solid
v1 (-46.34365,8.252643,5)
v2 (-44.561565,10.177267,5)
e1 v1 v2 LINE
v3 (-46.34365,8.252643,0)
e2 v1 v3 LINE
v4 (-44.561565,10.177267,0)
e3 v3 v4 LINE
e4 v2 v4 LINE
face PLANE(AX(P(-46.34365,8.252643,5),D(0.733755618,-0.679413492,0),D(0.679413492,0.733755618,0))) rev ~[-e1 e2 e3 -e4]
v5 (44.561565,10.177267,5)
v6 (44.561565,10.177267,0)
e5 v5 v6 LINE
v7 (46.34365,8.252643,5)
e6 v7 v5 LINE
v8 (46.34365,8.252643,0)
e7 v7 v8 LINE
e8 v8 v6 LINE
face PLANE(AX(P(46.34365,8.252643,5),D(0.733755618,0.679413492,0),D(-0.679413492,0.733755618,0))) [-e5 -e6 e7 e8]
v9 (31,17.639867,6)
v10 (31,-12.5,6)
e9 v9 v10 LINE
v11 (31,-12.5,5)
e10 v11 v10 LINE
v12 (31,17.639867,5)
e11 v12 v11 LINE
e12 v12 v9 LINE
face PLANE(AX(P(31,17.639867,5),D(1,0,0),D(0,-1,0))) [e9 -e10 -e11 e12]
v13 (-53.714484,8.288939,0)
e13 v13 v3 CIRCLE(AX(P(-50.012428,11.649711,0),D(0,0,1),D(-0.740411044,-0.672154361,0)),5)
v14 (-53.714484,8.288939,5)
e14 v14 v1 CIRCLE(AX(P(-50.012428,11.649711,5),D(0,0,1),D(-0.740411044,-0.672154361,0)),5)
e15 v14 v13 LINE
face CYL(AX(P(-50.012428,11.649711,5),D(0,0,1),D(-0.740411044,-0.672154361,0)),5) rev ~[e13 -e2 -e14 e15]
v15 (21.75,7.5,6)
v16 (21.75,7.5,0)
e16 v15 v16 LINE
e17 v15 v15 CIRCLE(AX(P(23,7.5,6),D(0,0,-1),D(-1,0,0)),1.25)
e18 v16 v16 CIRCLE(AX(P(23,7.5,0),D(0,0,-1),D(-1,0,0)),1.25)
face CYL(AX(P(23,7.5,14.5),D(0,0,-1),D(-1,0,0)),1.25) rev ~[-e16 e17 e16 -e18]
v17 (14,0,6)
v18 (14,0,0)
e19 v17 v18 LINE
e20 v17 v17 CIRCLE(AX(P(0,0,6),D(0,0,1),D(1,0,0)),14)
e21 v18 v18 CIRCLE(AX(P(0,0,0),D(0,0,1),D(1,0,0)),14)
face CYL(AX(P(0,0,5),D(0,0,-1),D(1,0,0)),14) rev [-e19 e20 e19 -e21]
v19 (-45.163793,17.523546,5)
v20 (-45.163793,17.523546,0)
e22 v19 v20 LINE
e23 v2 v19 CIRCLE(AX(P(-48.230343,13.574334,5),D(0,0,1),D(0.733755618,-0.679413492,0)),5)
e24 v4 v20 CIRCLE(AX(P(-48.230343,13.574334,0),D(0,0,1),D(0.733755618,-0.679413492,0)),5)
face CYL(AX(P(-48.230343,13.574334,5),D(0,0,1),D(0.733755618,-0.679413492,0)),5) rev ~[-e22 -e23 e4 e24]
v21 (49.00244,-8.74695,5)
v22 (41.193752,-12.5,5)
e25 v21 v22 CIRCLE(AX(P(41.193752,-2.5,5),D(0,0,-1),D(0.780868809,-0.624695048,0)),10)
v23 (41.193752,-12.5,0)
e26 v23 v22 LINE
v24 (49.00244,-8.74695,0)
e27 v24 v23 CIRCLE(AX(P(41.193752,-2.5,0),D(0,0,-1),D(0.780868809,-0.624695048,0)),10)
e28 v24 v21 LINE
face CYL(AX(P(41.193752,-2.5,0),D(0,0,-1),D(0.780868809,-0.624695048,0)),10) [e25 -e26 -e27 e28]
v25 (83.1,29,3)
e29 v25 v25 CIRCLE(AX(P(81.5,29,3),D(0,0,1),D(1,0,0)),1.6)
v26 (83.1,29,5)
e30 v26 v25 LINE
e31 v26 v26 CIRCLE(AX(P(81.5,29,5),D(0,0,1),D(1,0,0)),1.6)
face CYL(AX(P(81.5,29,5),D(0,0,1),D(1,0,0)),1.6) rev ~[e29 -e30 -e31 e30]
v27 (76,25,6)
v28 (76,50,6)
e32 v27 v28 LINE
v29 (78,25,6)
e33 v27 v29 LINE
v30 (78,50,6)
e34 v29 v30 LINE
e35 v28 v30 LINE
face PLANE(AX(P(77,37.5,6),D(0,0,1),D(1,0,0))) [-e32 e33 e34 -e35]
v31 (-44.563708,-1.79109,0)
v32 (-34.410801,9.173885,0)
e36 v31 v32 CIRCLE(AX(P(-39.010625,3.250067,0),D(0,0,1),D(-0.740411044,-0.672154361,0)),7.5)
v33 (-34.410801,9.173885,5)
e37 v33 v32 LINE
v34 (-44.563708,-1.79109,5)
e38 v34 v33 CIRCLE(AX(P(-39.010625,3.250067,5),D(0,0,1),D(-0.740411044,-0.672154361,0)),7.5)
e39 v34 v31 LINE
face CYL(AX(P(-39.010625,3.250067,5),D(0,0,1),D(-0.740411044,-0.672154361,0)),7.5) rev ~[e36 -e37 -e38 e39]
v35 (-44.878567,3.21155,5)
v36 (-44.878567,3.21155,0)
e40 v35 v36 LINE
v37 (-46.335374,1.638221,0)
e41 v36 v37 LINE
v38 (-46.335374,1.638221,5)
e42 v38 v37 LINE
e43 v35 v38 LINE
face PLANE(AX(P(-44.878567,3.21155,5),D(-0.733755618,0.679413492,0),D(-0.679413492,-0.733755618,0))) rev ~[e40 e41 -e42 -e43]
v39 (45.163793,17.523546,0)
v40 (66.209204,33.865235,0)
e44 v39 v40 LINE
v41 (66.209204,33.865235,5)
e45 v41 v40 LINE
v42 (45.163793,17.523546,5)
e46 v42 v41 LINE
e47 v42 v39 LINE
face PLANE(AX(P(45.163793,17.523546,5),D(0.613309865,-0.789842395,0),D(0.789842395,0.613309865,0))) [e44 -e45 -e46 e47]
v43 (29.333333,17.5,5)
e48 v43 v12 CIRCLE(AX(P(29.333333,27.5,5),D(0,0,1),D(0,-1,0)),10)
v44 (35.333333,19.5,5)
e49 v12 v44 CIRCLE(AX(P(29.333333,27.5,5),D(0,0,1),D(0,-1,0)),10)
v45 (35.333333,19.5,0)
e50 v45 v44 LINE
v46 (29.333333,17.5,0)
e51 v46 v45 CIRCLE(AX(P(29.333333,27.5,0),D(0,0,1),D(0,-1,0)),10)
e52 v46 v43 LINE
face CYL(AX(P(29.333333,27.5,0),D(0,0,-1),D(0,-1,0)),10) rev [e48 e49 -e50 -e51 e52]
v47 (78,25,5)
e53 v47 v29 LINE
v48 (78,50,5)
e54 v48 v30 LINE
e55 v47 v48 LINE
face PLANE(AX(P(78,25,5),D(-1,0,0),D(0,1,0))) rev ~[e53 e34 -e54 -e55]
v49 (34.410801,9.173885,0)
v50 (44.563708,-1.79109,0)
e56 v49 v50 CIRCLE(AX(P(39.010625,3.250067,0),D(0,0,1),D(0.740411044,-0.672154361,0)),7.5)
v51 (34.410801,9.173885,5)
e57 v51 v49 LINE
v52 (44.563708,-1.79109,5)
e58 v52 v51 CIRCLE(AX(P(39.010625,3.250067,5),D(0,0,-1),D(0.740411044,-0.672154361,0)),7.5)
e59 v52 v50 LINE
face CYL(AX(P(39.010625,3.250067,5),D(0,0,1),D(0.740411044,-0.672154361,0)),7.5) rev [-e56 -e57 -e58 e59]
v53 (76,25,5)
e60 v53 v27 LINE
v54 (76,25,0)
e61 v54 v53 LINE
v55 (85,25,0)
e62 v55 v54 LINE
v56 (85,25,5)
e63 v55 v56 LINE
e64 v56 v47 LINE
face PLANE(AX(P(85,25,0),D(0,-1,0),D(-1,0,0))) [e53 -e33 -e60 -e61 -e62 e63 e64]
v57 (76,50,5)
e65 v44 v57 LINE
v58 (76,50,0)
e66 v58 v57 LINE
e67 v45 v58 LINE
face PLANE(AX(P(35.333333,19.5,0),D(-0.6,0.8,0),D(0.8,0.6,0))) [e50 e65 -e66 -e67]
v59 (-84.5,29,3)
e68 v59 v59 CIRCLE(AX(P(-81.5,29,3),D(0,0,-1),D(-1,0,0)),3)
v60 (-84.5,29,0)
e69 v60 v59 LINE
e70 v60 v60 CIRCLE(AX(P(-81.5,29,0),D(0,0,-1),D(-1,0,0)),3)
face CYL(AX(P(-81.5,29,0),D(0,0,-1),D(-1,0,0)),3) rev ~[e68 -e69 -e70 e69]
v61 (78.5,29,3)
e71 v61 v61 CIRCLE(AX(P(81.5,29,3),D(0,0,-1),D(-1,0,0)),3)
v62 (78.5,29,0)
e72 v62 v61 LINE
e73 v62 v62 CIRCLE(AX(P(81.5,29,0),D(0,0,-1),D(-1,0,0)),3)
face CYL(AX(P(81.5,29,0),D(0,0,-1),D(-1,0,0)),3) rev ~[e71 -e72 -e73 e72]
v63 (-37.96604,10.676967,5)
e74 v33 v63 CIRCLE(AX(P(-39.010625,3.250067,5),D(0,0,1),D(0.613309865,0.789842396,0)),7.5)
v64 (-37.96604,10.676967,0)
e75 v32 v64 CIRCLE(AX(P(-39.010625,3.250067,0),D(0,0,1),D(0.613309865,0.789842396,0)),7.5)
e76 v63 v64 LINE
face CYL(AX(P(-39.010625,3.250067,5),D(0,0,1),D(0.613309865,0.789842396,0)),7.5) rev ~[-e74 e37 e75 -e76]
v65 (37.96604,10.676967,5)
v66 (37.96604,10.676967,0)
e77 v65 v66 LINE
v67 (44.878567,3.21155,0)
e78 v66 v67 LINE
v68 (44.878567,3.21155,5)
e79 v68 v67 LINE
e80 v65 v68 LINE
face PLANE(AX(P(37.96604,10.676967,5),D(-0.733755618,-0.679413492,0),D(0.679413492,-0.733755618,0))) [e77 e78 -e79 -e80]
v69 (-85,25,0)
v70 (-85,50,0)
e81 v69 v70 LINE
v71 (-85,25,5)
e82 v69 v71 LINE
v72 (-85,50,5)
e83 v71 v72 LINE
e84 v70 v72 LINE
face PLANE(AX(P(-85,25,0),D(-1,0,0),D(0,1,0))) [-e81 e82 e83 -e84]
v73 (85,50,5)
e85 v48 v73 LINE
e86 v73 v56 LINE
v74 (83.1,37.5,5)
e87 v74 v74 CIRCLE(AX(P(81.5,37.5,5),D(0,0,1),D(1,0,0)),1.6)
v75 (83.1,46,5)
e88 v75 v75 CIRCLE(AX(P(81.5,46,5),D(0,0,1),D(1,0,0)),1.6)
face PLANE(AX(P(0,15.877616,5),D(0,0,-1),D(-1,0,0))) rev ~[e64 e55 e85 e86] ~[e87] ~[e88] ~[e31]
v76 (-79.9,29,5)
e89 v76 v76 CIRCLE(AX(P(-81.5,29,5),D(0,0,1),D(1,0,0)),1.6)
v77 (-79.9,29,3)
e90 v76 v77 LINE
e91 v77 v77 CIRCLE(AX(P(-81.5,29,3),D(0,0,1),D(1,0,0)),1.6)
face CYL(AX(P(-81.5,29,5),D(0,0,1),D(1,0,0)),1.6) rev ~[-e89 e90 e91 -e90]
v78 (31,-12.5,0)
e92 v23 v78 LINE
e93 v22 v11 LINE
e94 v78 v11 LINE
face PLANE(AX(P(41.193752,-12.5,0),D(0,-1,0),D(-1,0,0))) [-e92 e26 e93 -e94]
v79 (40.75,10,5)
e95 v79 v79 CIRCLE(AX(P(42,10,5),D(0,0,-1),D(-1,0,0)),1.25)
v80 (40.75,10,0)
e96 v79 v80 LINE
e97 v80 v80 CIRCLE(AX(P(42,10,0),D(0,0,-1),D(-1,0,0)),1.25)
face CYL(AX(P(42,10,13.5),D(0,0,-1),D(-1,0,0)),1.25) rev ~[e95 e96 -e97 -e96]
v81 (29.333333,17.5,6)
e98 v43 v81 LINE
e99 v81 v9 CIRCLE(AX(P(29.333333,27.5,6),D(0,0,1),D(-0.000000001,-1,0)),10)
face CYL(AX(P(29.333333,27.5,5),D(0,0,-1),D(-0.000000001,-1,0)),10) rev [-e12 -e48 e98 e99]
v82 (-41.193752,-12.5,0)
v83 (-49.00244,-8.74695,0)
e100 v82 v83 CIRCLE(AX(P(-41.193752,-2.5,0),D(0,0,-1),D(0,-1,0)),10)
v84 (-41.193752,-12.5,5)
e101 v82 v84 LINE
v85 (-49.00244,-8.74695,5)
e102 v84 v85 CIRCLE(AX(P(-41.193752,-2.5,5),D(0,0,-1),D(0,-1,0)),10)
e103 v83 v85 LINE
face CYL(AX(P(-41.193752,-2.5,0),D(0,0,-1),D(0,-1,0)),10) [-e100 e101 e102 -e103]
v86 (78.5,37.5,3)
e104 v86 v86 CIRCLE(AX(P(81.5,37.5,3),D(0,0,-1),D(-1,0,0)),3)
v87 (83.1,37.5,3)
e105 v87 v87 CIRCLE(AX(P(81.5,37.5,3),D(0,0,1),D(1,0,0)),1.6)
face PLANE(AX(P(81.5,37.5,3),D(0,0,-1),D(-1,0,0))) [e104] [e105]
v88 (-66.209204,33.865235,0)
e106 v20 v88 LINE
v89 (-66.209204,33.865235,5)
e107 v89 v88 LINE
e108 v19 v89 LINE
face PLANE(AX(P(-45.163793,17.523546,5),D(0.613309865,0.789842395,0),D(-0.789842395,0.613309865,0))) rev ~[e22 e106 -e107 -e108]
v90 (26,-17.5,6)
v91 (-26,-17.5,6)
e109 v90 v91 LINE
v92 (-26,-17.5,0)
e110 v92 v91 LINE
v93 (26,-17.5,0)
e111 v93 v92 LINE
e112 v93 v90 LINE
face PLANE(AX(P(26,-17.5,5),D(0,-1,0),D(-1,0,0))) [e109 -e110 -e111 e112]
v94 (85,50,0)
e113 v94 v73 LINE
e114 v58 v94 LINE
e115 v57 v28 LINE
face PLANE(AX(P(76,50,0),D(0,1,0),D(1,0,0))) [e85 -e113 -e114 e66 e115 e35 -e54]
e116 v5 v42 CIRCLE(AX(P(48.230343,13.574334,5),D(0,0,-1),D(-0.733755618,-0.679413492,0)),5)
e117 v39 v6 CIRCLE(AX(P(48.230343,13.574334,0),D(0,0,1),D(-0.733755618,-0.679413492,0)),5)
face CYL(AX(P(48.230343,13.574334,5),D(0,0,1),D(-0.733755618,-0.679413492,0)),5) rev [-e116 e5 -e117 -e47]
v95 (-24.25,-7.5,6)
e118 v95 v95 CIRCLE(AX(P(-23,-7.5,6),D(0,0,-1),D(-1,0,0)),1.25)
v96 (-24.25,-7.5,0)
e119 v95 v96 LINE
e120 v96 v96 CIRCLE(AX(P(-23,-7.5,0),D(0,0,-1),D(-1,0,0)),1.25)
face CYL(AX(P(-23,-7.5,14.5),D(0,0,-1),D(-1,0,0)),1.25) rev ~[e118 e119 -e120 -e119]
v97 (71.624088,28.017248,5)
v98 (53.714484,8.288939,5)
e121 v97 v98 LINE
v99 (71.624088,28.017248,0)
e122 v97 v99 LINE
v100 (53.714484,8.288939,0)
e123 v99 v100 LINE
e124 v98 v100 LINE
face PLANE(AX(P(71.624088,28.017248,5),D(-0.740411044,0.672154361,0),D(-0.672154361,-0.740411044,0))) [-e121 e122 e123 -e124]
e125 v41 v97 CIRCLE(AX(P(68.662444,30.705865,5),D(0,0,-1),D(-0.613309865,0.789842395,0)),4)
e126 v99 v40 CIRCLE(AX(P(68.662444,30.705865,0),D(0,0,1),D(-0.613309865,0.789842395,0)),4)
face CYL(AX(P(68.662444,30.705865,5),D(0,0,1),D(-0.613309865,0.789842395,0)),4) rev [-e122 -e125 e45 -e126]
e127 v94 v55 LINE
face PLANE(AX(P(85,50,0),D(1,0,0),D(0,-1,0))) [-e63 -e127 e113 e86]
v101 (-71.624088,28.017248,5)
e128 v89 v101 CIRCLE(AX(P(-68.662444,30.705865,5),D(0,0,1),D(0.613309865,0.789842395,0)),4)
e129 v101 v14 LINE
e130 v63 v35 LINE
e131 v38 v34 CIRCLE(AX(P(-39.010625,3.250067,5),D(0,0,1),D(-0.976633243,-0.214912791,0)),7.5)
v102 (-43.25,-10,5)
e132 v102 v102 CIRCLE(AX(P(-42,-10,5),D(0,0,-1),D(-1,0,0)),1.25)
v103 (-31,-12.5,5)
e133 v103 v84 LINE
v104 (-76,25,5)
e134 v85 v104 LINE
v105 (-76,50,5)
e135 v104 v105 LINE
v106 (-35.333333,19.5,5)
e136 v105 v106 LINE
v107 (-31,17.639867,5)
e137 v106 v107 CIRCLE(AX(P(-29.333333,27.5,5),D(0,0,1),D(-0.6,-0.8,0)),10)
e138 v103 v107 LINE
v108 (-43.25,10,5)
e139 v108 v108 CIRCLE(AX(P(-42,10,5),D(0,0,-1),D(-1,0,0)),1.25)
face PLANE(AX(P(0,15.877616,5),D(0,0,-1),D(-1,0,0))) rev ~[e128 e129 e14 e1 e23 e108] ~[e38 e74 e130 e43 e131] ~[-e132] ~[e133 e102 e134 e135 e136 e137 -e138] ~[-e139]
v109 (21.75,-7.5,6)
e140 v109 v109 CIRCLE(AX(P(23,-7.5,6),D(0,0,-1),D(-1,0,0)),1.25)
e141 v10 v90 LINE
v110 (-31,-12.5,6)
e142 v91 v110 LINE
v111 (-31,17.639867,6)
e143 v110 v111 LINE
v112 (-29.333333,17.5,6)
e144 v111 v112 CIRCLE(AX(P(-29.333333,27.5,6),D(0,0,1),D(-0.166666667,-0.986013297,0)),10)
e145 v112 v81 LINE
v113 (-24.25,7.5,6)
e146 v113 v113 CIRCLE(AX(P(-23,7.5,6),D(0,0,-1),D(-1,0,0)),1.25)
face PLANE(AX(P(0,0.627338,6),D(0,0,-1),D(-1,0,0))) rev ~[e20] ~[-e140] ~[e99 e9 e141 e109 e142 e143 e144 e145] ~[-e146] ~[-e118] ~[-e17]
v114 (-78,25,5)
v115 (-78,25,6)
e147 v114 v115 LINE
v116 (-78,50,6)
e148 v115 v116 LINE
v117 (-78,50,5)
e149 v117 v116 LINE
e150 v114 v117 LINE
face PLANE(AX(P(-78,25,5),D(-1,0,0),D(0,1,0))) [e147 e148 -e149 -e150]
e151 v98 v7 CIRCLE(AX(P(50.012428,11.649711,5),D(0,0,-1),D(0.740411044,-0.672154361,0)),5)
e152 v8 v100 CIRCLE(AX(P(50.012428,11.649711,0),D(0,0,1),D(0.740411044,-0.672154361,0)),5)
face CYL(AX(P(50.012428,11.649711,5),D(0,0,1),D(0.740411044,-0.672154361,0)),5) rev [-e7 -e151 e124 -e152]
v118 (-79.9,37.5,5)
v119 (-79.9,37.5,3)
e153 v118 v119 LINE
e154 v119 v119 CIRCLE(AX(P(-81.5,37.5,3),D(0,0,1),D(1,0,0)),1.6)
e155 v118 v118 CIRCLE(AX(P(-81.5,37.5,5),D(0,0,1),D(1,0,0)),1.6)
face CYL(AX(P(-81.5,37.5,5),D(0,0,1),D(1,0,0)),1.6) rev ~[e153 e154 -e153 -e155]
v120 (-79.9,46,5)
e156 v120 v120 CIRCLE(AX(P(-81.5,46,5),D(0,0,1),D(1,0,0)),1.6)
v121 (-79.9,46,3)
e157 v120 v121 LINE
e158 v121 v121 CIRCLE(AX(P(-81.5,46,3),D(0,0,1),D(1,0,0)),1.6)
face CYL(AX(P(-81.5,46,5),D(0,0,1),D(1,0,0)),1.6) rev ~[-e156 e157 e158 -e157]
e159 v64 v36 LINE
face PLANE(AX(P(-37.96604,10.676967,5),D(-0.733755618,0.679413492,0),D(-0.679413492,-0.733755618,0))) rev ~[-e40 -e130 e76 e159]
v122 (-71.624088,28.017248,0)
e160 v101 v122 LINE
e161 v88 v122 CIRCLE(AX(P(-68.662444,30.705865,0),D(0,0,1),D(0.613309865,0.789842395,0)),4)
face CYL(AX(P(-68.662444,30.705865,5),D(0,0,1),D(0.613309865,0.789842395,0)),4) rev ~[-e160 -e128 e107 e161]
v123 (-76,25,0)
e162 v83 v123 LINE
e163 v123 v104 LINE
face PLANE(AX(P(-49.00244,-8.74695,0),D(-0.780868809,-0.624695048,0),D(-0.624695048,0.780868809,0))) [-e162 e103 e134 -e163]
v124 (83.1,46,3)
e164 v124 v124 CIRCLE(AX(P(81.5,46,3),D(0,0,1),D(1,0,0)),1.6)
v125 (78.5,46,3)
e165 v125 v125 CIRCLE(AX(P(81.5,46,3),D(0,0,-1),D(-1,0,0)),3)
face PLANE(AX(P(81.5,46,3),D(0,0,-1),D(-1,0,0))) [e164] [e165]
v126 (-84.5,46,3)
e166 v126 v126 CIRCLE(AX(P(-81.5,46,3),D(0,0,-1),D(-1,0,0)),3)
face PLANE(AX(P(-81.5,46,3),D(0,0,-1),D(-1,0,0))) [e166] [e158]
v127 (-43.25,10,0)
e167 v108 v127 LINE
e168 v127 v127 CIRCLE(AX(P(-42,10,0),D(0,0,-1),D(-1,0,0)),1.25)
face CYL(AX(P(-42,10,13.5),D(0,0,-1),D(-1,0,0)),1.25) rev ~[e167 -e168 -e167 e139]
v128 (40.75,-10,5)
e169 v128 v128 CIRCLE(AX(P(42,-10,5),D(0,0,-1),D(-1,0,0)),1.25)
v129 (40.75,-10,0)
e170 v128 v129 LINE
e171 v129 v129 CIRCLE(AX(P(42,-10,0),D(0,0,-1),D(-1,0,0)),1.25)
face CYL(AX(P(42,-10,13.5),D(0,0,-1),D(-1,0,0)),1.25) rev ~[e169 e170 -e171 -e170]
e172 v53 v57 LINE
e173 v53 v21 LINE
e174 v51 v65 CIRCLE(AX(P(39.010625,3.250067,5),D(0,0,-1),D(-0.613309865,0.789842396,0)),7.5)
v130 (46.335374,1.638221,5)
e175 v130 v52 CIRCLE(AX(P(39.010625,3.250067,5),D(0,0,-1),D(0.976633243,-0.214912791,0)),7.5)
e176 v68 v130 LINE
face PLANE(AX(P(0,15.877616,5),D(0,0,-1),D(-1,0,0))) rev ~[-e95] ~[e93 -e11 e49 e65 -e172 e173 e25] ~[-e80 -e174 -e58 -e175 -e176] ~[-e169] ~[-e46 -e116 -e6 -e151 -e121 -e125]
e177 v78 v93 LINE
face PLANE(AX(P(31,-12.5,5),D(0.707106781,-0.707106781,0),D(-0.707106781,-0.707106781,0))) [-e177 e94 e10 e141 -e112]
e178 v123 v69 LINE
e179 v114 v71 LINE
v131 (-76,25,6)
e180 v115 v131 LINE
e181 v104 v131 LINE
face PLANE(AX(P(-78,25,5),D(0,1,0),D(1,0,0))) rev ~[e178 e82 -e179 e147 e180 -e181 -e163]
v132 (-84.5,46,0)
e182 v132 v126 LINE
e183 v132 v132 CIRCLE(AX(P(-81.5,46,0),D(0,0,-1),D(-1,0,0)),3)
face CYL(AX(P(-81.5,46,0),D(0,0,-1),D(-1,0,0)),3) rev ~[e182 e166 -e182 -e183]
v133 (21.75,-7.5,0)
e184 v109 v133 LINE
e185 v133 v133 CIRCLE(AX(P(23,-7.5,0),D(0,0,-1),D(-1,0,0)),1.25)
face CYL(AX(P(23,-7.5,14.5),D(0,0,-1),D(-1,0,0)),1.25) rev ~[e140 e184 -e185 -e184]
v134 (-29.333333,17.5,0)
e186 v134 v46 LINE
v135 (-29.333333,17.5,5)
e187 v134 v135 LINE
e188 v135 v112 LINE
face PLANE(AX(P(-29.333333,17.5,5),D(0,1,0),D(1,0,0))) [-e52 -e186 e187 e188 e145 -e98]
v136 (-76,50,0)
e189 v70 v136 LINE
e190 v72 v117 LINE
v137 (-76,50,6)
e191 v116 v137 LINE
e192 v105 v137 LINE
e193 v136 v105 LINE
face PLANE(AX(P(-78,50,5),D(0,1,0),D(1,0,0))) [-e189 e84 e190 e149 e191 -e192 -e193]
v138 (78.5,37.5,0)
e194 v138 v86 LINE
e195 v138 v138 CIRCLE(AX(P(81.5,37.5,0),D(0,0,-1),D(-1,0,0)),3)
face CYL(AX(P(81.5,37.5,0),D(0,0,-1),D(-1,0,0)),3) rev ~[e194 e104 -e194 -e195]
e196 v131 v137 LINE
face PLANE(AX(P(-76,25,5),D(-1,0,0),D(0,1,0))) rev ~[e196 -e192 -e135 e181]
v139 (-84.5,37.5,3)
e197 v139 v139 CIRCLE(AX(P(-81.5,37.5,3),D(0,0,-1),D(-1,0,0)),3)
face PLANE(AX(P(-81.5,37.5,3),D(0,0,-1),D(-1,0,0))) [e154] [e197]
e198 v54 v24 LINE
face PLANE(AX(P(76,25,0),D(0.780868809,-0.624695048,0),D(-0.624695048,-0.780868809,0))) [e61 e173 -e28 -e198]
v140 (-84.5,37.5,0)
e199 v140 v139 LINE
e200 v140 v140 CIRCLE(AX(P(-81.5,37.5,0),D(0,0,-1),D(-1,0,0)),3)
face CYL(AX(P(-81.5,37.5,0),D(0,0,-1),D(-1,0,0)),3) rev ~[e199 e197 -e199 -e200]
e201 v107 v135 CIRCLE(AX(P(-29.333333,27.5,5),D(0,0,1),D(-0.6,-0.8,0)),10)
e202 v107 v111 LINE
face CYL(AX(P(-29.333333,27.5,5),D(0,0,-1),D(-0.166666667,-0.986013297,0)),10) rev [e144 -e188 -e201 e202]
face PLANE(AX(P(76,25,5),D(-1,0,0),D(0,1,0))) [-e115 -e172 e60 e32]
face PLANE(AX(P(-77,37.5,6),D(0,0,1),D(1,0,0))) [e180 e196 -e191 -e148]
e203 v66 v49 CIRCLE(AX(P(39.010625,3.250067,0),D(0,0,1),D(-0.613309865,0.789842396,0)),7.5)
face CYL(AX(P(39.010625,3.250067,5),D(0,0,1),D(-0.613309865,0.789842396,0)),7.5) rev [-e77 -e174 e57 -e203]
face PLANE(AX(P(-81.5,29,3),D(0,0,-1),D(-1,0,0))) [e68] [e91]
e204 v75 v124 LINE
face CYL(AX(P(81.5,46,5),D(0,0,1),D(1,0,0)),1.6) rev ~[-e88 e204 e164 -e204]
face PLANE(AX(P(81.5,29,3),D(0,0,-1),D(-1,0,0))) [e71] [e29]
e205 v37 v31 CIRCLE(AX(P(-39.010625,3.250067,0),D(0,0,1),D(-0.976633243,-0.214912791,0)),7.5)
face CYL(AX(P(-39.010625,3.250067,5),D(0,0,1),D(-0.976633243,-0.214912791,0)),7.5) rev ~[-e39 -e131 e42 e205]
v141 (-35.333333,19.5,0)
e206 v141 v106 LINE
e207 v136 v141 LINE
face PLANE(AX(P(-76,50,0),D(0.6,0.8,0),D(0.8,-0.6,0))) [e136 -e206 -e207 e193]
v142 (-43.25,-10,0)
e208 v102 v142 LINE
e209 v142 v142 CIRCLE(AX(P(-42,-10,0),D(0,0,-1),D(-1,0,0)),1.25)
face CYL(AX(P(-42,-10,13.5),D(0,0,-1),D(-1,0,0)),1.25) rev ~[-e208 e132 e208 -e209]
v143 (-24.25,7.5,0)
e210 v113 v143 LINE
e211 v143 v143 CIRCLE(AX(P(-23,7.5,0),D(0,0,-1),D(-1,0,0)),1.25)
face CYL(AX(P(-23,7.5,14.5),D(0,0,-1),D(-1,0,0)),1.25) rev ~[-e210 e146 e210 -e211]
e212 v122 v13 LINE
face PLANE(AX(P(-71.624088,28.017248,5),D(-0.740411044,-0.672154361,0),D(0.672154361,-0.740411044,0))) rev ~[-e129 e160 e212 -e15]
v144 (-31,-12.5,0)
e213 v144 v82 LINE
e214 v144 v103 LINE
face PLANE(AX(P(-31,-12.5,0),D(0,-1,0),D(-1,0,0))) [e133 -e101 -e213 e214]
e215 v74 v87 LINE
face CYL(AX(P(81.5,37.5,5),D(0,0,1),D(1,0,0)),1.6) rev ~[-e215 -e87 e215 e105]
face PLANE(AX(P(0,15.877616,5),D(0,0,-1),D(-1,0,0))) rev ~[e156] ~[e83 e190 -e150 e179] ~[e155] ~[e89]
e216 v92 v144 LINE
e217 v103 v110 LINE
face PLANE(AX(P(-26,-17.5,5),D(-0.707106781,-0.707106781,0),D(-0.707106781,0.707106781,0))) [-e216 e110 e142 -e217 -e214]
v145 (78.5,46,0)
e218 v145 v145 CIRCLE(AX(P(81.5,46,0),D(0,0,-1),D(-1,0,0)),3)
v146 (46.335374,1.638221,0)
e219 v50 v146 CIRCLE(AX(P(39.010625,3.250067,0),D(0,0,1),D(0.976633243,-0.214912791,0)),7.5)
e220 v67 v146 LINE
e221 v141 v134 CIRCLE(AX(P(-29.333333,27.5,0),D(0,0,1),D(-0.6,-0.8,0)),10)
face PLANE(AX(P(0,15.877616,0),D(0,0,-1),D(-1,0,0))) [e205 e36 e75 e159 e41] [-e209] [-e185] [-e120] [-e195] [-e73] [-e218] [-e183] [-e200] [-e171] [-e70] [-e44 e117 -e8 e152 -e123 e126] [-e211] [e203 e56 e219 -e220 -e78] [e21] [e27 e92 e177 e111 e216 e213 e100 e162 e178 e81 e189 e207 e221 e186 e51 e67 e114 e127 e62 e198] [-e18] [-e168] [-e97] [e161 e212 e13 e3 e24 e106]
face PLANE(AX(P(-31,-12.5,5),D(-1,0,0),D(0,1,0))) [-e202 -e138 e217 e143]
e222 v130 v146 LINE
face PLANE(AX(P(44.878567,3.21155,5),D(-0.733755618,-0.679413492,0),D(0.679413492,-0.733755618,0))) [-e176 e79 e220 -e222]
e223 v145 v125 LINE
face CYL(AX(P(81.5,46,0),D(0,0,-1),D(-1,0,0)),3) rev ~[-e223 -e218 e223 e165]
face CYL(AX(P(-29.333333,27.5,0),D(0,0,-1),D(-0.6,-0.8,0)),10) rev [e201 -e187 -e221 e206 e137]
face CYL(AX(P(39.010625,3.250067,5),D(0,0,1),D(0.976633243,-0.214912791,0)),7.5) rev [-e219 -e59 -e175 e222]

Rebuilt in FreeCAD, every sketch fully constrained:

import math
import FreeCAD as App
import Part
import Sketcher
from FreeCAD import Vector
Q = App.Units.Quantity


def add_polygon(sketch, points):
    """Adds a closed chain of lines whose ends are joined by coincident constraints."""
    first, n = sketch.GeometryCount, len(points)
    for a, b in zip(points, points[1:] + points[:1]):
        sketch.addGeometry(Part.LineSegment(App.Vector(*a, 0), App.Vector(*b, 0)), False)
    for i in range(n):
        sketch.addConstraint(Sketcher.Constraint("Coincident", first + i, 2, first + (i + 1) % n, 1))

doc = App.newDocument("Part")
body = doc.addObject("PartDesign::Body", "Body")

# Sketch on XY plane
sketch1 = body.newObject("Sketcher::SketchObject", "Sketch")
sketch1.AttachmentSupport = (doc.getObject("XY_Plane"), [""])
sketch1.MapMode = "FlatFace"
sketch1.addGeometry([
    Part.LineSegment(Vector(-85, 50, 0), Vector(-85, 25, 0)),  # 0
    Part.LineSegment(Vector(-85, 25, 0), Vector(-76, 25, 0)),  # 1
    Part.LineSegment(Vector(-76, 25, 0), Vector(-49, -9, 0)),  # 2
    Part.ArcOfCircle(Part.Circle(Vector(-41, -2, 0), Vector(0, 0, 1), 10), math.radians(-141), math.radians(-90)),  # 3
    Part.LineSegment(Vector(-41, -12, 0), Vector(-31, -12, 0)),  # 4
    Part.LineSegment(Vector(-31, -12, 0), Vector(-26, -18, 0)),  # 5
    Part.LineSegment(Vector(-26, -18, 0), Vector(26, -18, 0)),  # 6
    Part.LineSegment(Vector(26, -18, 0), Vector(31, -12, 0)),  # 7
    Part.LineSegment(Vector(31, -12, 0), Vector(41, -12, 0)),  # 8
    Part.ArcOfCircle(Part.Circle(Vector(41, -2, 0), Vector(0, 0, 1), 10), math.radians(-90), math.radians(-39)),  # 9
    Part.LineSegment(Vector(49, -9, 0), Vector(76, 25, 0)),  # 10
    Part.LineSegment(Vector(76, 25, 0), Vector(85, 25, 0)),  # 11
    Part.LineSegment(Vector(85, 25, 0), Vector(85, 50, 0)),  # 12
    Part.LineSegment(Vector(85, 50, 0), Vector(76, 50, 0)),  # 13
    Part.LineSegment(Vector(76, 50, 0), Vector(35, 20, 0)),  # 14
    Part.ArcOfCircle(Part.Circle(Vector(29, 27, 0), Vector(0, 0, 1), 10), math.radians(-90), math.radians(-53)),  # 15
    Part.LineSegment(Vector(29, 18, 0), Vector(-29, 18, 0)),  # 16
    Part.ArcOfCircle(Part.Circle(Vector(-29, 27, 0), Vector(0, 0, 1), 10), math.radians(-127), math.radians(-90)),  # 17
    Part.LineSegment(Vector(-35, 20, 0), Vector(-76, 50, 0)),  # 18
    Part.LineSegment(Vector(-76, 50, 0), Vector(-85, 50, 0)),  # 19
    Part.Circle(Vector(0, 0, 0), Vector(0, 0, 1), 14),  # 20
], False)
sketch1.addConstraint([
    Sketcher.Constraint("Coincident", 0, 2, 1, 1),
    Sketcher.Constraint("Coincident", 1, 2, 2, 1),
    Sketcher.Constraint("Tangent", 2, 2, 3, 1),
    Sketcher.Constraint("Tangent", 3, 2, 4, 1),
    Sketcher.Constraint("Coincident", 4, 2, 5, 1),
    Sketcher.Constraint("Coincident", 5, 2, 6, 1),
    Sketcher.Constraint("Coincident", 6, 2, 7, 1),
    Sketcher.Constraint("Coincident", 7, 2, 8, 1),
    Sketcher.Constraint("Tangent", 8, 2, 9, 1),
    Sketcher.Constraint("Tangent", 9, 2, 10, 1),
    Sketcher.Constraint("Coincident", 10, 2, 11, 1),
    Sketcher.Constraint("Coincident", 11, 2, 12, 1),
    Sketcher.Constraint("Coincident", 12, 2, 13, 1),
    Sketcher.Constraint("Coincident", 13, 2, 14, 1),
    Sketcher.Constraint("Tangent", 14, 2, 15, 2),
    Sketcher.Constraint("Tangent", 15, 1, 16, 1),
    Sketcher.Constraint("Tangent", 16, 2, 17, 2),
    Sketcher.Constraint("Tangent", 17, 1, 18, 1),
    Sketcher.Constraint("Coincident", 18, 2, 19, 1),
    Sketcher.Constraint("Coincident", 19, 2, 0, 1),
    Sketcher.Constraint("Vertical", 0),
    Sketcher.Constraint("Horizontal", 1),
    Sketcher.Constraint("Horizontal", 4),
    Sketcher.Constraint("Horizontal", 6),
    Sketcher.Constraint("Horizontal", 8),
    Sketcher.Constraint("Horizontal", 11),
    Sketcher.Constraint("Vertical", 12),
    Sketcher.Constraint("Horizontal", 13),
    Sketcher.Constraint("Horizontal", 16),
    Sketcher.Constraint("Horizontal", 19),
    Sketcher.Constraint("Coincident", 20, 3, -1, 1),
    Sketcher.Constraint("Equal", 3, 9),
    Sketcher.Constraint("Equal", 9, 15),
    Sketcher.Constraint("Equal", 15, 17),
    Sketcher.Constraint("Symmetric", 3, 3, 9, 3, -2),
    Sketcher.Constraint("Symmetric", 1, 2, 10, 2, -2),
    Sketcher.Constraint("Symmetric", 14, 2, 17, 1, -2),
    Sketcher.Constraint("Symmetric", 12, 2, 19, 2, -2),
    Sketcher.Constraint("Perpendicular", 5, 7),
    Sketcher.Constraint("Vertical", 10, 2, 13, 2),
    Sketcher.Constraint("Equal", 4, 8),
    Sketcher.Constraint("Equal", 5, 7),
    Sketcher.Constraint("Diameter", 20, Q("28 mm")),
    Sketcher.Constraint("Radius", 3, Q("10 mm")),
    Sketcher.Constraint("DistanceX", 1, 1, 1, 2, Q("9 mm")),
    Sketcher.Constraint("DistanceX", 6, 1, 6, 2, Q("52 mm")),
    Sketcher.Constraint("DistanceY", 0, 2, 0, 1, Q("25 mm")),
    Sketcher.Constraint("DistanceX", 0, 2, -1, 1, Q("85 mm")),
    Sketcher.Constraint("DistanceY", -1, 1, 0, 2, Q("25 mm")),
    Sketcher.Constraint("DistanceX", 4, 2, -1, 1, Q("31 mm")),
    Sketcher.Constraint("DistanceY", 9, 3, 15, 3, Q("30 mm")),
    Sketcher.Constraint("DistanceX", 15, 3, 14, 2, Q("6 mm")),
    Sketcher.Constraint("DistanceY", 3, 3, -1, 1, Q("2.5 mm")),
    Sketcher.Constraint("DistanceX", 4, 1, 4, 2, Q("10.193752 mm")),
])
pad1 = body.newObject("PartDesign::Pad", "Pad")
pad1.Profile = sketch1
pad1.Length = 5

# Sketch on XY plane
sketch2 = body.newObject("Sketcher::SketchObject", "Sketch001")
sketch2.AttachmentSupport = (doc.getObject("XY_Plane"), [""])
sketch2.MapMode = "FlatFace"
sketch2.AttachmentOffset = App.Placement(Vector(0, 0, 5), App.Rotation())
add_polygon(sketch2, [(-78, 50), (-78, 25), (-76, 25), (-76, 50)])  # lines 0-3
add_polygon(sketch2, [(76, 50), (76, 25), (78, 25), (78, 50)])  # lines 4-7
sketch2.addConstraint([
    Sketcher.Constraint("Vertical", 0),
    Sketcher.Constraint("Horizontal", 1),
    Sketcher.Constraint("Vertical", 2),
    Sketcher.Constraint("Horizontal", 3),
    Sketcher.Constraint("Vertical", 4),
    Sketcher.Constraint("Horizontal", 5),
    Sketcher.Constraint("Vertical", 6),
    Sketcher.Constraint("Horizontal", 7),
    Sketcher.Constraint("Symmetric", 1, 2, 4, 2, -2),
    Sketcher.Constraint("Symmetric", 3, 2, 6, 2, -2),
    Sketcher.Constraint("DistanceX", 1, 1, 1, 2, Q("2 mm")),
    Sketcher.Constraint("DistanceY", 0, 2, 0, 1, Q("25 mm")),
    Sketcher.Constraint("DistanceX", 0, 2, -1, 1, Q("78 mm")),
    Sketcher.Constraint("DistanceY", -1, 1, 0, 2, Q("25 mm")),
])
pad2 = body.newObject("PartDesign::Pad", "Pad001")
pad2.Profile = sketch2
pad2.Length = 1

# Sketch on XY plane
sketch3 = body.newObject("Sketcher::SketchObject", "Sketch002")
sketch3.AttachmentSupport = (doc.getObject("XY_Plane"), [""])
sketch3.MapMode = "FlatFace"
sketch3.AttachmentOffset = App.Placement(Vector(0, 0, 5), App.Rotation())
sketch3.addGeometry([
    Part.LineSegment(Vector(-71.6, 28, 0), Vector(-53.7, 8.3, 0)),  # 0
    Part.ArcOfCircle(Part.Circle(Vector(-50, 11.6, 0), Vector(0, 0, 1), 5), math.radians(-138), math.radians(-43)),  # 1
    Part.LineSegment(Vector(-46.3, 8.3, 0), Vector(-44.6, 10.2, 0)),  # 2
    Part.ArcOfCircle(Part.Circle(Vector(-48.2, 13.6, 0), Vector(0, 0, 1), 5), math.radians(-43), math.radians(52)),  # 3
    Part.LineSegment(Vector(-45.2, 17.5, 0), Vector(-66.2, 33.9, 0)),  # 4
    Part.ArcOfCircle(Part.Circle(Vector(-68.7, 30.7, 0), Vector(0, 0, 1), 4), math.radians(52), math.radians(222)),  # 5
], False)
sketch3.addConstraint([
    Sketcher.Constraint("Tangent", 0, 2, 1, 1),
    Sketcher.Constraint("Tangent", 1, 2, 2, 1),
    Sketcher.Constraint("Tangent", 2, 2, 3, 1),
    Sketcher.Constraint("Tangent", 3, 2, 4, 1),
    Sketcher.Constraint("Tangent", 4, 2, 5, 1),
    Sketcher.Constraint("Tangent", 5, 2, 0, 1),
    Sketcher.Constraint("Equal", 1, 3),
    Sketcher.Constraint("Equal", 0, 4),
    Sketcher.Constraint("Radius", 1, Q("5 mm")),
    Sketcher.Constraint("Radius", 5, Q("4 mm")),
    Sketcher.Constraint("DistanceX", 5, 3, 3, 3, Q("20.432101 mm")),
    Sketcher.Constraint("DistanceY", 2, 2, 5, 3, Q("20.528598 mm")),
    Sketcher.Constraint("DistanceY", 3, 3, 4, 2, Q("20.2909 mm")),
    Sketcher.Constraint("DistanceX", 1, 3, -1, 1, Q("50.012428 mm")),
    Sketcher.Constraint("DistanceY", -1, 1, 1, 3, Q("11.649711 mm")),
])
pocket1 = body.newObject("PartDesign::Pocket", "Pocket")
pocket1.Profile = sketch3
pocket1.Type = "UpToFirst"

# Sketch on XY plane
sketch4 = body.newObject("Sketcher::SketchObject", "Sketch003")
sketch4.AttachmentSupport = (doc.getObject("XY_Plane"), [""])
sketch4.MapMode = "FlatFace"
sketch4.AttachmentOffset = App.Placement(Vector(0, 0, 5), App.Rotation())
sketch4.addGeometry([
    Part.LineSegment(Vector(46.3, 1.6, 0), Vector(44.9, 3.2, 0)),  # 0
    Part.LineSegment(Vector(44.9, 3.2, 0), Vector(38, 10.7, 0)),  # 1
    Part.ArcOfCircle(Part.Circle(Vector(39, 3.3, 0), Vector(0, 0, 1), 7.5), math.radians(98), math.radians(128)),  # 2
    Part.ArcOfCircle(Part.Circle(Vector(39, 3.3, 0), Vector(0, 0, 1), 7.5), math.radians(128), math.radians(318)),  # 3
    Part.ArcOfCircle(Part.Circle(Vector(39, 3.3, 0), Vector(0, 0, 1), 7.5), math.radians(-42), math.radians(-12)),  # 4
], False)
sketch4.addConstraint([
    Sketcher.Constraint("Coincident", 0, 2, 1, 1),
    Sketcher.Constraint("Coincident", 1, 2, 2, 1),
    Sketcher.Constraint("Tangent", 2, 2, 3, 1),
    Sketcher.Constraint("Tangent", 3, 2, 4, 1),
    Sketcher.Constraint("Coincident", 4, 2, 0, 1),
    Sketcher.Constraint("Coincident", 4, 3, 2, 3),
    Sketcher.Constraint("Parallel", 0, 1),
    Sketcher.Constraint("Radius", 2, Q("7.5 mm")),
    Sketcher.Constraint("DistanceX", -1, 1, 2, 2, Q("34.410801 mm")),
    Sketcher.Constraint("DistanceY", 4, 3, 1, 2, Q("7.4269 mm")),
    Sketcher.Constraint("DistanceY", -1, 1, 0, 2, Q("3.21155 mm")),
    Sketcher.Constraint("DistanceX", -1, 1, 1, 2, Q("37.96604 mm")),
    Sketcher.Constraint("DistanceY", 3, 2, -1, 1, Q("1.79109 mm")),
    Sketcher.Constraint("DistanceY", -1, 1, 4, 2, Q("1.638221 mm")),
    Sketcher.Constraint("DistanceX", 3, 2, 0, 2, Q("0.314859 mm")),
])
pocket2 = body.newObject("PartDesign::Pocket", "Pocket001")
pocket2.Profile = sketch4
pocket2.Type = "UpToFirst"

# Sketch on XY plane
sketch5 = body.newObject("Sketcher::SketchObject", "Sketch004")
sketch5.AttachmentSupport = (doc.getObject("XY_Plane"), [""])
sketch5.MapMode = "FlatFace"
sketch5.AttachmentOffset = App.Placement(Vector(0, 0, 5), App.Rotation())
sketch5.addGeometry([
    Part.LineSegment(Vector(-44.9, 3.2, 0), Vector(-46.3, 1.6, 0)),  # 0
    Part.ArcOfCircle(Part.Circle(Vector(-39, 3.3, 0), Vector(0, 0, 1), 7.5), math.radians(-168), math.radians(-138)),  # 1
    Part.ArcOfCircle(Part.Circle(Vector(-39, 3.3, 0), Vector(0, 0, 1), 7.5), math.radians(-138), math.radians(52)),  # 2
    Part.ArcOfCircle(Part.Circle(Vector(-39, 3.3, 0), Vector(0, 0, 1), 7.5), math.radians(52), math.radians(82)),  # 3
    Part.LineSegment(Vector(-38, 10.7, 0), Vector(-44.9, 3.2, 0)),  # 4
], False)
sketch5.addConstraint([
    Sketcher.Constraint("Coincident", 0, 2, 1, 1),
    Sketcher.Constraint("Tangent", 1, 2, 2, 1),
    Sketcher.Constraint("Tangent", 2, 2, 3, 1),
    Sketcher.Constraint("Coincident", 3, 2, 4, 1),
    Sketcher.Constraint("Coincident", 4, 2, 0, 1),
    Sketcher.Constraint("Coincident", 3, 3, 1, 3),
    Sketcher.Constraint("Parallel", 0, 4),
    Sketcher.Constraint("Radius", 1, Q("7.5 mm")),
    Sketcher.Constraint("DistanceX", 2, 2, -1, 1, Q("34.410801 mm")),
    Sketcher.Constraint("DistanceY", 1, 3, 3, 2, Q("7.4269 mm")),
    Sketcher.Constraint("DistanceY", -1, 1, 0, 2, Q("1.638221 mm")),
    Sketcher.Constraint("DistanceY", 1, 2, -1, 1, Q("1.79109 mm")),
    Sketcher.Constraint("DistanceX", 3, 2, -1, 1, Q("37.96604 mm")),
    Sketcher.Constraint("DistanceY", -1, 1, 4, 2, Q("3.21155 mm")),
    Sketcher.Constraint("DistanceX", 0, 2, 3, 3, Q("7.324749 mm")),
])
pocket3 = body.newObject("PartDesign::Pocket", "Pocket002")
pocket3.Profile = sketch5
pocket3.Type = "UpToFirst"

# Sketch on XY plane
sketch6 = body.newObject("Sketcher::SketchObject", "Sketch005")
sketch6.AttachmentSupport = (doc.getObject("XY_Plane"), [""])
sketch6.MapMode = "FlatFace"
sketch6.AttachmentOffset = App.Placement(Vector(0, 0, 5), App.Rotation())
sketch6.addGeometry([
    Part.LineSegment(Vector(44.6, 10.2, 0), Vector(46.3, 8.3, 0)),  # 0
    Part.ArcOfCircle(Part.Circle(Vector(50, 11.6, 0), Vector(0, 0, 1), 5), math.radians(-137), math.radians(-42)),  # 1
    Part.LineSegment(Vector(53.7, 8.3, 0), Vector(71.6, 28, 0)),  # 2
    Part.ArcOfCircle(Part.Circle(Vector(68.7, 30.7, 0), Vector(0, 0, 1), 4), math.radians(-42), math.radians(128)),  # 3
    Part.LineSegment(Vector(66.2, 33.9, 0), Vector(45.2, 17.5, 0)),  # 4
    Part.ArcOfCircle(Part.Circle(Vector(48.2, 13.6, 0), Vector(0, 0, 1), 5), math.radians(128), math.radians(223)),  # 5
], False)
sketch6.addConstraint([
    Sketcher.Constraint("Tangent", 0, 2, 1, 1),
    Sketcher.Constraint("Tangent", 1, 2, 2, 1),
    Sketcher.Constraint("Tangent", 2, 2, 3, 1),
    Sketcher.Constraint("Tangent", 3, 2, 4, 1),
    Sketcher.Constraint("Tangent", 4, 2, 5, 1),
    Sketcher.Constraint("Tangent", 5, 2, 0, 1),
    Sketcher.Constraint("Equal", 1, 5),
    Sketcher.Constraint("Equal", 2, 4),
    Sketcher.Constraint("Radius", 1, Q("5 mm")),
    Sketcher.Constraint("Radius", 3, Q("4 mm")),
    Sketcher.Constraint("DistanceX", 5, 3, 3, 3, Q("20.432101 mm")),
    Sketcher.Constraint("DistanceY", 5, 3, 3, 2, Q("20.2909 mm")),
    Sketcher.Constraint("DistanceX", -1, 1, 1, 3, Q("50.012428 mm")),
    Sketcher.Constraint("DistanceY", -1, 1, 1, 3, Q("11.649711 mm")),
    Sketcher.Constraint("DistanceX", -1, 1, 0, 2, Q("46.34365 mm")),
])
pocket4 = body.newObject("PartDesign::Pocket", "Pocket003")
pocket4.Profile = sketch6
pocket4.Type = "UpToFirst"

# Sketch on XY plane
sketch7 = body.newObject("Sketcher::SketchObject", "Sketch006")
sketch7.AttachmentSupport = (doc.getObject("XY_Plane"), [""])
sketch7.MapMode = "FlatFace"
sketch7.AttachmentOffset = App.Placement(Vector(0, 0, 5), App.Rotation())
sketch7.addGeometry([
    Part.Circle(Vector(-42, 10, 0), Vector(0, 0, 1), 1.2),
    Part.Circle(Vector(-42, -10, 0), Vector(0, 0, 1), 1.2),
    Part.Circle(Vector(42, 10, 0), Vector(0, 0, 1), 1.2),
    Part.Circle(Vector(42, -10, 0), Vector(0, 0, 1), 1.2),
], False)
sketch7.addConstraint([
    Sketcher.Constraint("Equal", 0, 1),
    Sketcher.Constraint("Equal", 1, 2),
    Sketcher.Constraint("Equal", 2, 3),
    Sketcher.Constraint("Symmetric", 1, 3, 2, 3, -1, 1),
    Sketcher.Constraint("Symmetric", 0, 3, 3, 3, -1, 1),
    Sketcher.Constraint("Symmetric", 0, 3, 2, 3, -2),
    Sketcher.Constraint("Diameter", 0, Q("2.5 mm")),
    Sketcher.Constraint("DistanceX", 0, 3, -1, 1, Q("42 mm")),
    Sketcher.Constraint("DistanceY", -1, 1, 0, 3, Q("10 mm")),
])
doc.recompute()
hole = body.newObject("PartDesign::Hole", "Hole")
hole.Profile = sketch7
hole.ThreadType = "None"
hole.Diameter = 2.5
hole.DepthType = "Dimension"
hole.Depth = 8.5
hole.DrillPoint = "Angled"
hole.DrillPointAngle = 118

# Sketch on XY plane
sketch8 = body.newObject("Sketcher::SketchObject", "Sketch007")
sketch8.AttachmentSupport = (doc.getObject("XY_Plane"), [""])
sketch8.MapMode = "FlatFace"
sketch8.AttachmentOffset = App.Placement(Vector(0, 0, 5), App.Rotation())
sketch8.addGeometry([
    Part.LineSegment(Vector(-31, 17.6, 0), Vector(-31, -12.5, 0)),  # 0
    Part.LineSegment(Vector(-31, -12.5, 0), Vector(-26, -17.5, 0)),  # 1
    Part.LineSegment(Vector(-26, -17.5, 0), Vector(26, -17.5, 0)),  # 2
    Part.LineSegment(Vector(26, -17.5, 0), Vector(31, -12.5, 0)),  # 3
    Part.LineSegment(Vector(31, -12.5, 0), Vector(31, 17.6, 0)),  # 4
    Part.ArcOfCircle(Part.Circle(Vector(29.3, 27.5, 0), Vector(0, 0, 1), 10), math.radians(-90), math.radians(-80.41)),  # 5
    Part.LineSegment(Vector(29.3, 17.5, 0), Vector(-29.3, 17.5, 0)),  # 6
    Part.ArcOfCircle(Part.Circle(Vector(-29.3, 27.5, 0), Vector(0, 0, 1), 10), math.radians(-99.59), math.radians(-90)),  # 7
    Part.Circle(Vector(0, 0, 0), Vector(0, 0, 1), 14),  # 8
], False)
sketch8.addConstraint([
    Sketcher.Constraint("Coincident", 0, 2, 1, 1),
    Sketcher.Constraint("Coincident", 1, 2, 2, 1),
    Sketcher.Constraint("Coincident", 2, 2, 3, 1),
    Sketcher.Constraint("Coincident", 3, 2, 4, 1),
    Sketcher.Constraint("Coincident", 4, 2, 5, 2),
    Sketcher.Constraint("Tangent", 5, 1, 6, 1),
    Sketcher.Constraint("Tangent", 6, 2, 7, 2),
    Sketcher.Constraint("Coincident", 7, 1, 0, 1),
    Sketcher.Constraint("Vertical", 0),
    Sketcher.Constraint("Horizontal", 2),
    Sketcher.Constraint("Vertical", 4),
    Sketcher.Constraint("Horizontal", 6),
    Sketcher.Constraint("Coincident", 8, 3, -1, 1),
    Sketcher.Constraint("Equal", 5, 7),
    Sketcher.Constraint("Symmetric", 0, 2, 3, 2, -2),
    Sketcher.Constraint("Perpendicular", 1, 3),
    Sketcher.Constraint("Horizontal", 4, 2, 7, 1),
    Sketcher.Constraint("Equal", 1, 3),
    Sketcher.Constraint("Diameter", 8, Q("28 mm")),
    Sketcher.Constraint("Radius", 5, Q("10 mm")),
    Sketcher.Constraint("DistanceX", 2, 1, 2, 2, Q("52 mm")),
    Sketcher.Constraint("DistanceX", 0, 2, -1, 1, Q("31 mm")),
    Sketcher.Constraint("DistanceY", 0, 2, 7, 3, Q("40 mm")),
    Sketcher.Constraint("DistanceY", -1, 1, 5, 3, Q("27.5 mm")),
    Sketcher.Constraint("DistanceX", 6, 2, 6, 1, Q("58.666667 mm")),
])
pad3 = body.newObject("PartDesign::Pad", "Pad002")
pad3.Profile = sketch8
pad3.Length = 1

# Sketch on XY plane
sketch9 = body.newObject("Sketcher::SketchObject", "Sketch008")
sketch9.AttachmentSupport = (doc.getObject("XY_Plane"), [""])
sketch9.MapMode = "FlatFace"
sketch9.AttachmentOffset = App.Placement(Vector(0, 0, 6), App.Rotation())
sketch9.addGeometry([
    Part.Circle(Vector(-23, 7.5, 0), Vector(0, 0, 1), 1.2),
    Part.Circle(Vector(-23, -7.5, 0), Vector(0, 0, 1), 1.2),
    Part.Circle(Vector(23, -7.5, 0), Vector(0, 0, 1), 1.2),
    Part.Circle(Vector(23, 7.5, 0), Vector(0, 0, 1), 1.2),
], False)
sketch9.addConstraint([
    Sketcher.Constraint("Equal", 0, 1),
    Sketcher.Constraint("Equal", 1, 2),
    Sketcher.Constraint("Equal", 2, 3),
    Sketcher.Constraint("Symmetric", 0, 3, 2, 3, -1, 1),
    Sketcher.Constraint("Symmetric", 1, 3, 3, 3, -1, 1),
    Sketcher.Constraint("Symmetric", 1, 3, 2, 3, -2),
    Sketcher.Constraint("Diameter", 0, Q("2.5 mm")),
    Sketcher.Constraint("DistanceX", 0, 3, -1, 1, Q("23 mm")),
    Sketcher.Constraint("DistanceY", 1, 3, 0, 3, Q("15 mm")),
])
doc.recompute()
hole2 = body.newObject("PartDesign::Hole", "Hole001")
hole2.Profile = sketch9
hole2.ThreadType = "None"
hole2.Diameter = 2.5
hole2.DepthType = "Dimension"
hole2.Depth = 8.5
hole2.DrillPoint = "Angled"
hole2.DrillPointAngle = 118

# Sketch on XY plane
sketch10 = body.newObject("Sketcher::SketchObject", "Sketch009")
sketch10.AttachmentSupport = (doc.getObject("XY_Plane"), [""])
sketch10.MapMode = "FlatFace"
sketch10.AttachmentOffset = App.Placement(Vector(0, 0, 5), App.Rotation())
sketch10.addGeometry(Part.Circle(Vector(-81.5, 37.5, 0), Vector(0, 0, 1), 1.6), False)
sketch10.addConstraint([
    Sketcher.Constraint("Diameter", 0, Q("3.2 mm")),
    Sketcher.Constraint("DistanceX", 0, 3, -1, 1, Q("81.5 mm")),
    Sketcher.Constraint("DistanceY", -1, 1, 0, 3, Q("37.5 mm")),
])
pocket5 = body.newObject("PartDesign::Pocket", "Pocket004")
pocket5.Profile = sketch10
pocket5.Type = "UpToFirst"

# Sketch on XY plane
sketch11 = body.newObject("Sketcher::SketchObject", "Sketch010")
sketch11.AttachmentSupport = (doc.getObject("XY_Plane"), [""])
sketch11.MapMode = "FlatFace"
sketch11.AttachmentOffset = App.Placement(Vector(0, 0, 5), App.Rotation())
sketch11.addGeometry(Part.Circle(Vector(-81.5, 29, 0), Vector(0, 0, 1), 1.6), False)
sketch11.addConstraint([
    Sketcher.Constraint("Diameter", 0, Q("3.2 mm")),
    Sketcher.Constraint("DistanceY", -1, 1, 0, 3, Q("29 mm")),
    Sketcher.Constraint("DistanceX", 0, 3, -1, 1, Q("81.5 mm")),
])
pocket6 = body.newObject("PartDesign::Pocket", "Pocket005")
pocket6.Profile = sketch11
pocket6.Type = "UpToFirst"

# Sketch on XY plane
sketch12 = body.newObject("Sketcher::SketchObject", "Sketch011")
sketch12.AttachmentSupport = (doc.getObject("XY_Plane"), [""])
sketch12.MapMode = "FlatFace"
sketch12.AttachmentOffset = App.Placement(Vector(0, 0, 5), App.Rotation())
sketch12.addGeometry(Part.Circle(Vector(-81.5, 46, 0), Vector(0, 0, 1), 1.6), False)
sketch12.addConstraint([
    Sketcher.Constraint("Diameter", 0, Q("3.2 mm")),
    Sketcher.Constraint("DistanceY", -1, 1, 0, 3, Q("46 mm")),
    Sketcher.Constraint("DistanceX", 0, 3, -1, 1, Q("81.5 mm")),
])
pocket7 = body.newObject("PartDesign::Pocket", "Pocket006")
pocket7.Profile = sketch12
pocket7.Type = "UpToFirst"

# Sketch on XY plane
sketch13 = body.newObject("Sketcher::SketchObject", "Sketch012")
sketch13.AttachmentSupport = (doc.getObject("XY_Plane"), [""])
sketch13.MapMode = "FlatFace"
sketch13.AttachmentOffset = App.Placement(Vector(0, 0, 5), App.Rotation())
sketch13.addGeometry(Part.Circle(Vector(81.5, 46, 0), Vector(0, 0, 1), 1.6), False)
sketch13.addConstraint([
    Sketcher.Constraint("Diameter", 0, Q("3.2 mm")),
    Sketcher.Constraint("DistanceY", -1, 1, 0, 3, Q("46 mm")),
    Sketcher.Constraint("DistanceX", -1, 1, 0, 3, Q("81.5 mm")),
])
pocket8 = body.newObject("PartDesign::Pocket", "Pocket007")
pocket8.Profile = sketch13
pocket8.Type = "UpToFirst"

# Sketch on XY plane
sketch14 = body.newObject("Sketcher::SketchObject", "Sketch013")
sketch14.AttachmentSupport = (doc.getObject("XY_Plane"), [""])
sketch14.MapMode = "FlatFace"
sketch14.AttachmentOffset = App.Placement(Vector(0, 0, 5), App.Rotation())
sketch14.addGeometry(Part.Circle(Vector(81.5, 29, 0), Vector(0, 0, 1), 1.6), False)
sketch14.addConstraint([
    Sketcher.Constraint("Diameter", 0, Q("3.2 mm")),
    Sketcher.Constraint("DistanceY", -1, 1, 0, 3, Q("29 mm")),
    Sketcher.Constraint("DistanceX", -1, 1, 0, 3, Q("81.5 mm")),
])
pocket9 = body.newObject("PartDesign::Pocket", "Pocket008")
pocket9.Profile = sketch14
pocket9.Type = "UpToFirst"

# Sketch on XY plane
sketch15 = body.newObject("Sketcher::SketchObject", "Sketch014")
sketch15.AttachmentSupport = (doc.getObject("XY_Plane"), [""])
sketch15.MapMode = "FlatFace"
sketch15.AttachmentOffset = App.Placement(Vector(0, 0, 5), App.Rotation())
sketch15.addGeometry(Part.Circle(Vector(81.5, 37.5, 0), Vector(0, 0, 1), 1.6), False)
sketch15.addConstraint([
    Sketcher.Constraint("Diameter", 0, Q("3.2 mm")),
    Sketcher.Constraint("DistanceX", -1, 1, 0, 3, Q("81.5 mm")),
    Sketcher.Constraint("DistanceY", -1, 1, 0, 3, Q("37.5 mm")),
])
pocket10 = body.newObject("PartDesign::Pocket", "Pocket009")
pocket10.Profile = sketch15
pocket10.Type = "UpToFirst"

# Sketch on XY plane
sketch16 = body.newObject("Sketcher::SketchObject", "Sketch015")
sketch16.AttachmentSupport = (doc.getObject("XY_Plane"), [""])
sketch16.MapMode = "FlatFace"
sketch16.addGeometry([
    Part.Circle(Vector(81.5, 37.5, 0), Vector(0, 0, 1), 3),  # 0
    Part.Circle(Vector(81.5, 46, 0), Vector(0, 0, 1), 3),  # 1
    Part.Circle(Vector(81.5, 29, 0), Vector(0, 0, 1), 3),  # 2
    Part.Circle(Vector(-81.5, 29, 0), Vector(0, 0, 1), 3),  # 3
    Part.Circle(Vector(-81.5, 37.5, 0), Vector(0, 0, 1), 3),  # 4
    Part.Circle(Vector(-81.5, 46, 0), Vector(0, 0, 1), 3),  # 5
], False)
sketch16.addConstraint([
    Sketcher.Constraint("Equal", 0, 1),
    Sketcher.Constraint("Equal", 1, 2),
    Sketcher.Constraint("Equal", 2, 3),
    Sketcher.Constraint("Equal", 3, 4),
    Sketcher.Constraint("Equal", 4, 5),
    Sketcher.Constraint("Symmetric", 2, 3, 3, 3, -2),
    Sketcher.Constraint("Symmetric", 0, 3, 4, 3, -2),
    Sketcher.Constraint("Symmetric", 1, 3, 5, 3, -2),
    Sketcher.Constraint("Vertical", 0, 3, 1, 3),
    Sketcher.Constraint("Vertical", 1, 3, 2, 3),
    Sketcher.Constraint("Diameter", 0, Q("6 mm")),
    Sketcher.Constraint("DistanceY", -1, 1, 1, 3, Q("46 mm")),
    Sketcher.Constraint("DistanceY", -1, 1, 2, 3, Q("29 mm")),
    Sketcher.Constraint("DistanceX", 3, 3, 2, 3, Q("163 mm")),
    Sketcher.Constraint("DistanceY", -1, 1, 0, 3, Q("37.5 mm")),
])
pocket11 = body.newObject("PartDesign::Pocket", "Pocket010")
pocket11.Profile = sketch16
pocket11.Length = 3
pocket11.Reversed = True

doc.recompute()
